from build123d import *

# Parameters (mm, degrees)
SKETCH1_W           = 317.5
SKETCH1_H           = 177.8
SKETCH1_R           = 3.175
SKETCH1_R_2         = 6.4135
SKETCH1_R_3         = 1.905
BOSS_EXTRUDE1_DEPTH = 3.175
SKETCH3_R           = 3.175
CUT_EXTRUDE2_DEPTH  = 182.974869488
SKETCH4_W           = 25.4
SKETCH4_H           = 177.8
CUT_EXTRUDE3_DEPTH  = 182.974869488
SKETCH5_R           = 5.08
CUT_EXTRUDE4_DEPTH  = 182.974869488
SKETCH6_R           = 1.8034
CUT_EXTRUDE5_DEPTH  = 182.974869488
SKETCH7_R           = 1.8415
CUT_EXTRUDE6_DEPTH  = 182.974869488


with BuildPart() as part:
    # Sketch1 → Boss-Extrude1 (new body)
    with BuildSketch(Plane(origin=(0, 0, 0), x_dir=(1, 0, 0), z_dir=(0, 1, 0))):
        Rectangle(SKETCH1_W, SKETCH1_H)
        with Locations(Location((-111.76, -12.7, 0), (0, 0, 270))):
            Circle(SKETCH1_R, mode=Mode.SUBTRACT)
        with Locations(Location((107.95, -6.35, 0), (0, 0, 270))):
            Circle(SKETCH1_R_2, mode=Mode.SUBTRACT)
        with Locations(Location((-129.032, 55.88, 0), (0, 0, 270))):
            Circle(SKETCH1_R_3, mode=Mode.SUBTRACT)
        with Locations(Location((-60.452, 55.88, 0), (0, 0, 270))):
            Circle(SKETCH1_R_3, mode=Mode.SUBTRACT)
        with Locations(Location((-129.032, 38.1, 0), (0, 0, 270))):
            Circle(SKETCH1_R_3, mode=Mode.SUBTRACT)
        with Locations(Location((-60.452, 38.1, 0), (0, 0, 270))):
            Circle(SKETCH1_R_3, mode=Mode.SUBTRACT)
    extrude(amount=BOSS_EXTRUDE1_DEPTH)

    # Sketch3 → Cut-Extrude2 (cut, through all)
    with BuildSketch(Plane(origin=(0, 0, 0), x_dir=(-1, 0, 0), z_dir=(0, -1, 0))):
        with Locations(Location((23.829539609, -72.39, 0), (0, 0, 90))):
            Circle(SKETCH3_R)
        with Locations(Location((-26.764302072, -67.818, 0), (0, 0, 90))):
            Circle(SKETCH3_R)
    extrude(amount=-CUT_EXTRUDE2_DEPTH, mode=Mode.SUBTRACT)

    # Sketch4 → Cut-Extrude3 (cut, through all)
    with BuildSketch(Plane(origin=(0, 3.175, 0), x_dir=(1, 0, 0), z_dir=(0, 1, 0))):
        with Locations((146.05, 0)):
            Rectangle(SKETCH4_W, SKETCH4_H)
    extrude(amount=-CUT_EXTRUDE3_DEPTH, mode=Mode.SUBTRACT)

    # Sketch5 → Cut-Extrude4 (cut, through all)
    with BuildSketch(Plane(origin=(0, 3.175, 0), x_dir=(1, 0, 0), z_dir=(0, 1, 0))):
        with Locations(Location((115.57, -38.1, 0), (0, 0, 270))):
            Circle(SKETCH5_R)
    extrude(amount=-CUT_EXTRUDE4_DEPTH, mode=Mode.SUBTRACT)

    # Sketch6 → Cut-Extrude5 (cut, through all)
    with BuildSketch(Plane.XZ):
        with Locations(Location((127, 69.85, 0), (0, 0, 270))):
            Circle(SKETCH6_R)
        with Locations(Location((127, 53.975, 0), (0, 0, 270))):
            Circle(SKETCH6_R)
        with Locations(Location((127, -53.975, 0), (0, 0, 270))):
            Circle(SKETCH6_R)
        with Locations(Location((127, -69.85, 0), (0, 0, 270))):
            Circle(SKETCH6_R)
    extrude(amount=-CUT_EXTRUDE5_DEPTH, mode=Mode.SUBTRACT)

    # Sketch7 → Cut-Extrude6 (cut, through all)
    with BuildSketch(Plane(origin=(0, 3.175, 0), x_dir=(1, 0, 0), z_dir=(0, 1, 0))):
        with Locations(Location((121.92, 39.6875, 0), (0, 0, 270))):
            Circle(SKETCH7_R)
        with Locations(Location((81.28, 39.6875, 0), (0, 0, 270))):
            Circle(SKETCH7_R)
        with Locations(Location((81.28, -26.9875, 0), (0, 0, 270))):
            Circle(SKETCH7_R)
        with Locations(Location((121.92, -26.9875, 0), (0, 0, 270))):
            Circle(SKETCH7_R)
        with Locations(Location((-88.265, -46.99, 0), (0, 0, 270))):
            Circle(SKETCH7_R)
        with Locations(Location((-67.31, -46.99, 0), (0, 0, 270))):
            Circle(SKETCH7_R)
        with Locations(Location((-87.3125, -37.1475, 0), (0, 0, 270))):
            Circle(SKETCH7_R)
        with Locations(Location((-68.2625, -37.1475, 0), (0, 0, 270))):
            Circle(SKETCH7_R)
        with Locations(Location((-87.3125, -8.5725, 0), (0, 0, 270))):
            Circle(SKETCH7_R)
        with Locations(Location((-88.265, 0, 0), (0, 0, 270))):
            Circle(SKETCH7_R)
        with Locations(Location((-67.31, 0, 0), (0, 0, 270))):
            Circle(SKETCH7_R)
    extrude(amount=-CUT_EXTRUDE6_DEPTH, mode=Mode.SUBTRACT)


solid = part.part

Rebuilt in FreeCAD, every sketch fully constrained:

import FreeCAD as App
import Part
import Sketcher
from FreeCAD import Vector
Q = App.Units.Quantity

doc = App.newDocument("Part")
body = doc.addObject("PartDesign::Body", "Body")

# Sketch on XZ plane
sketch1 = body.newObject("Sketcher::SketchObject", "Sketch")
sketch1.AttachmentSupport = (doc.getObject("XZ_Plane"), [""])
sketch1.MapMode = "FlatFace"
sketch1.addGeometry([
    Part.LineSegment(Vector(-158.75, -88.9, 0), Vector(-158.75, 88.9, 0)),  # 0
    Part.LineSegment(Vector(-158.75, 88.9, 0), Vector(158.75, 88.9, 0)),  # 1
    Part.LineSegment(Vector(158.75, 88.9, 0), Vector(158.75, -88.9, 0)),  # 2
    Part.LineSegment(Vector(158.75, -88.9, 0), Vector(-158.75, -88.9, 0)),  # 3
    Part.Circle(Vector(-111.76, 12.7, 0), Vector(0, 0, 1), 3.175),  # 4
    Part.Circle(Vector(107.95, 6.35, 0), Vector(0, 0, 1), 6.4135),  # 5
    Part.Circle(Vector(-129.032, -38.1, 0), Vector(0, 0, 1), 1.905),  # 6
    Part.Circle(Vector(-60.452, -38.1, 0), Vector(0, 0, 1), 1.905),  # 7
    Part.Circle(Vector(-129.032, -55.88, 0), Vector(0, 0, 1), 1.905),  # 8
    Part.Circle(Vector(-60.452, -55.88, 0), Vector(0, 0, 1), 1.905),  # 9
], False)
sketch1.addConstraint([
    Sketcher.Constraint("Coincident", 0, 2, 1, 1),
    Sketcher.Constraint("Coincident", 1, 2, 2, 1),
    Sketcher.Constraint("Coincident", 2, 2, 3, 1),
    Sketcher.Constraint("Coincident", 3, 2, 0, 1),
    Sketcher.Constraint("Vertical", 0),
    Sketcher.Constraint("Horizontal", 1),
    Sketcher.Constraint("Vertical", 2),
    Sketcher.Constraint("Horizontal", 3),
    Sketcher.Constraint("Equal", 6, 7),
    Sketcher.Constraint("Equal", 7, 8),
    Sketcher.Constraint("Equal", 8, 9),
    Sketcher.Constraint("Symmetric", 0, 2, 2, 2, -1, 1),
    Sketcher.Constraint("Horizontal", 6, 3, 7, 3),
    Sketcher.Constraint("Horizontal", 8, 3, 9, 3),
    Sketcher.Constraint("Vertical", 6, 3, 8, 3),
    Sketcher.Constraint("Vertical", 7, 3, 9, 3),
    Sketcher.Constraint("Diameter", 4, Q("0.25 in")),
    Sketcher.Constraint("Diameter", 6, Q("0.15 in")),
    Sketcher.Constraint("DistanceY", 0, 1, 0, 2, Q("7 in")),
    Sketcher.Constraint("Diameter", 5, Q("0.505 in")),
    Sketcher.Constraint("DistanceX", 1, 1, 1, 2, Q("12.5 in")),
    Sketcher.Constraint("DistanceY", 6, 3, 4, 3, Q("2 in")),
    Sketcher.Constraint("DistanceY", 4, 3, 0, 2, Q("3 in")),
    Sketcher.Constraint("DistanceX", 5, 3, 1, 2, Q("2 in")),
    Sketcher.Constraint("DistanceX", 4, 3, -1, 1, Q("4.4 in")),
    Sketcher.Constraint("DistanceY", 8, 3, -1, 1, Q("2.2 in")),
    Sketcher.Constraint("DistanceX", 6, 3, 7, 3, Q("2.7 in")),
    Sketcher.Constraint("DistanceY", -1, 1, 5, 3, Q("0.25 in")),
    Sketcher.Constraint("DistanceX", 6, 3, -1, 1, Q("5.08 in")),
])
pad1 = body.newObject("PartDesign::Pad", "Pad")
pad1.Profile = sketch1
pad1.Length = Q("0.125 in")
pad1.Reversed = True

# Sketch on XZ plane
sketch2 = body.newObject("Sketcher::SketchObject", "Sketch001")
sketch2.AttachmentSupport = (doc.getObject("XZ_Plane"), [""])
sketch2.MapMode = "FlatFace"
sketch2.addGeometry([
    Part.Circle(Vector(-23.82954, 72.39, 0), Vector(0, 0, 1), 3.175),
    Part.Circle(Vector(26.764302, 67.818, 0), Vector(0, 0, 1), 3.175),
], False)
sketch2.addConstraint([
    Sketcher.Constraint("Equal", 0, 1),
    Sketcher.Constraint("Diameter", 0, Q("0.25 in")),
    Sketcher.Constraint("DistanceY", -1, 1, 0, 3, Q("2.85 in")),
    Sketcher.Constraint("DistanceY", -1, 1, 1, 3, Q("2.67 in")),
    Sketcher.Constraint("DistanceX", 0, 3, -1, 1, 23.82954),
    Sketcher.Constraint("DistanceX", 0, 3, 1, 3, 50.593842),
])
pocket1 = body.newObject("PartDesign::Pocket", "Pocket")
pocket1.Profile = sketch2
pocket1.Type = "ThroughAll"

# Sketch on XZ plane
sketch3 = body.newObject("Sketcher::SketchObject", "Sketch002")
sketch3.AttachmentSupport = (doc.getObject("XZ_Plane"), [""])
sketch3.MapMode = "FlatFace"
sketch3.AttachmentOffset = App.Placement(Vector(0, 0, -0.125 * 25.4), App.Rotation())
sketch3.addGeometry([
    Part.LineSegment(Vector(133.35, -88.9, 0), Vector(133.35, 88.9, 0)),
    Part.LineSegment(Vector(133.35, 88.9, 0), Vector(158.75, 88.9, 0)),
    Part.LineSegment(Vector(158.75, 88.9, 0), Vector(158.75, -88.9, 0)),
    Part.LineSegment(Vector(158.75, -88.9, 0), Vector(133.35, -88.9, 0)),
], False)
sketch3.addConstraint([
    Sketcher.Constraint("Coincident", 0, 2, 1, 1),
    Sketcher.Constraint("Coincident", 1, 2, 2, 1),
    Sketcher.Constraint("Coincident", 2, 2, 3, 1),
    Sketcher.Constraint("Coincident", 3, 2, 0, 1),
    Sketcher.Constraint("Vertical", 0),
    Sketcher.Constraint("Horizontal", 1),
    Sketcher.Constraint("Vertical", 2),
    Sketcher.Constraint("Horizontal", 3),
    Sketcher.Constraint("DistanceX", 1, 1, 1, 2, Q("1 in")),
    Sketcher.Constraint("DistanceY", 0, 1, 0, 2, Q("7 in")),
    Sketcher.Constraint("DistanceY", -1, 1, 0, 2, Q("3.5 in")),
    Sketcher.Constraint("DistanceX", -1, 1, 0, 2, Q("5.25 in")),
])
pocket2 = body.newObject("PartDesign::Pocket", "Pocket001")
pocket2.Profile = sketch3
pocket2.Type = "ThroughAll"
pocket2.Reversed = True

# Sketch on XZ plane
sketch4 = body.newObject("Sketcher::SketchObject", "Sketch003")
sketch4.AttachmentSupport = (doc.getObject("XZ_Plane"), [""])
sketch4.MapMode = "FlatFace"
sketch4.AttachmentOffset = App.Placement(Vector(0, 0, -0.125 * 25.4), App.Rotation())
sketch4.addGeometry(Part.Circle(Vector(115.57, 38.1, 0), Vector(0, 0, 1), 5.08), False)
sketch4.addConstraint([
    Sketcher.Constraint("Diameter", 0, Q("0.4 in")),
    Sketcher.Constraint("DistanceY", -1, 1, 0, 3, Q("1.5 in")),
    Sketcher.Constraint("DistanceX", -1, 1, 0, 3, Q("4.55 in")),
])
pocket3 = body.newObject("PartDesign::Pocket", "Pocket002")
pocket3.Profile = sketch4
pocket3.Type = "ThroughAll"
pocket3.Reversed = True

# Sketch on XZ plane
sketch5 = body.newObject("Sketcher::SketchObject", "Sketch004")
sketch5.AttachmentSupport = (doc.getObject("XZ_Plane"), [""])
sketch5.MapMode = "FlatFace"
sketch5.addGeometry([
    Part.Circle(Vector(127, 69.85, 0), Vector(0, 0, 1), 1.8034),
    Part.Circle(Vector(127, 53.975, 0), Vector(0, 0, 1), 1.8034),
    Part.Circle(Vector(127, -53.975, 0), Vector(0, 0, 1), 1.8034),
    Part.Circle(Vector(127, -69.85, 0), Vector(0, 0, 1), 1.8034),
], False)
sketch5.addConstraint([
    Sketcher.Constraint("Equal", 0, 1),
    Sketcher.Constraint("Equal", 1, 2),
    Sketcher.Constraint("Equal", 2, 3),
    Sketcher.Constraint("Symmetric", 1, 3, 2, 3, -1),
    Sketcher.Constraint("Symmetric", 0, 3, 3, 3, -1),
    Sketcher.Constraint("Vertical", 0, 3, 1, 3),
    Sketcher.Constraint("Diameter", 0, Q("0.142 in")),
    Sketcher.Constraint("DistanceX", -1, 1, 0, 3, Q("5 in")),
    Sketcher.Constraint("DistanceY", 3, 3, 0, 3, Q("5.5 in")),
    Sketcher.Constraint("DistanceY", 2, 3, 1, 3, Q("4.25 in")),
])
pocket4 = body.newObject("PartDesign::Pocket", "Pocket003")
pocket4.Profile = sketch5
pocket4.Type = "ThroughAll"

# Sketch on XZ plane
sketch6 = body.newObject("Sketcher::SketchObject", "Sketch005")
sketch6.AttachmentSupport = (doc.getObject("XZ_Plane"), [""])
sketch6.MapMode = "FlatFace"
sketch6.AttachmentOffset = App.Placement(Vector(0, 0, -0.125 * 25.4), App.Rotation())
sketch6.addGeometry([
    Part.Circle(Vector(121.92, -39.6875, 0), Vector(0, 0, 1), 1.8415),  # 0
    Part.Circle(Vector(81.28, -39.6875, 0), Vector(0, 0, 1), 1.8415),  # 1
    Part.Circle(Vector(81.28, 26.9875, 0), Vector(0, 0, 1), 1.8415),  # 2
    Part.Circle(Vector(121.92, 26.9875, 0), Vector(0, 0, 1), 1.8415),  # 3
    Part.Circle(Vector(-88.265, 46.99, 0), Vector(0, 0, 1), 1.8415),  # 4
    Part.Circle(Vector(-67.31, 46.99, 0), Vector(0, 0, 1), 1.8415),  # 5
    Part.Circle(Vector(-87.3125, 37.1475, 0), Vector(0, 0, 1), 1.8415),  # 6
    Part.Circle(Vector(-68.2625, 37.1475, 0), Vector(0, 0, 1), 1.8415),  # 7
    Part.Circle(Vector(-87.3125, 8.5725, 0), Vector(0, 0, 1), 1.8415),  # 8
    Part.Circle(Vector(-88.265, 0, 0), Vector(0, 0, 1), 1.8415),  # 9
    Part.Circle(Vector(-67.31, 0, 0), Vector(0, 0, 1), 1.8415),  # 10
], False)
sketch6.addConstraint([
    Sketcher.Constraint("Equal", 0, 1),
    Sketcher.Constraint("Equal", 1, 2),
    Sketcher.Constraint("Equal", 2, 3),
    Sketcher.Constraint("Equal", 3, 4),
    Sketcher.Constraint("Equal", 4, 5),
    Sketcher.Constraint("Equal", 5, 6),
    Sketcher.Constraint("Equal", 6, 7),
    Sketcher.Constraint("Equal", 7, 8),
    Sketcher.Constraint("Equal", 8, 9),
    Sketcher.Constraint("Equal", 9, 10),
    Sketcher.Constraint("PointOnObject", 9, 3, -1),
    Sketcher.Constraint("PointOnObject", 10, 3, -1),
    Sketcher.Constraint("Horizontal", 0, 3, 1, 3),
    Sketcher.Constraint("Horizontal", 2, 3, 3, 3),
    Sketcher.Constraint("Horizontal", 4, 3, 5, 3),
    Sketcher.Constraint("Horizontal", 6, 3, 7, 3),
    Sketcher.Constraint("Vertical", 1, 3, 2, 3),
    Sketcher.Constraint("Vertical", 0, 3, 3, 3),
    Sketcher.Constraint("Vertical", 6, 3, 8, 3),
    Sketcher.Constraint("Vertical", 4, 3, 9, 3),
    Sketcher.Constraint("Vertical", 5, 3, 10, 3),
    Sketcher.Constraint("Diameter", 0, Q("0.145 in")),
    Sketcher.Constraint("DistanceX", -1, 1, 0, 3, Q("4.8 in")),
    Sketcher.Constraint("DistanceX", -1, 1, 1, 3, Q("3.2 in")),
    Sketcher.Constraint("DistanceY", 2, 3, 6, 3, Q("0.4 in")),
    Sketcher.Constraint("DistanceY", -1, 1, 4, 3, Q("1.85 in")),
    Sketcher.Constraint("DistanceX", 5, 3, -1, 1, Q("2.65 in")),
    Sketcher.Constraint("DistanceX", 6, 3, 7, 3, Q("0.75 in")),
    Sketcher.Constraint("DistanceY", 0, 3, -1, 1, Q("1.5625 in")),
    Sketcher.Constraint("DistanceY", -1, 1, 2, 3, Q("1.0625 in")),
    Sketcher.Constraint("DistanceX", 4, 3, -1, 1, Q("3.475 in")),
    Sketcher.Constraint("DistanceX", 6, 3, -1, 1, Q("3.4375 in")),
    Sketcher.Constraint("DistanceY", 8, 3, 6, 3, Q("1.125 in")),
])
pocket5 = body.newObject("PartDesign::Pocket", "Pocket004")
pocket5.Profile = sketch6
pocket5.Type = "ThroughAll"
pocket5.Reversed = True

doc.recompute()
